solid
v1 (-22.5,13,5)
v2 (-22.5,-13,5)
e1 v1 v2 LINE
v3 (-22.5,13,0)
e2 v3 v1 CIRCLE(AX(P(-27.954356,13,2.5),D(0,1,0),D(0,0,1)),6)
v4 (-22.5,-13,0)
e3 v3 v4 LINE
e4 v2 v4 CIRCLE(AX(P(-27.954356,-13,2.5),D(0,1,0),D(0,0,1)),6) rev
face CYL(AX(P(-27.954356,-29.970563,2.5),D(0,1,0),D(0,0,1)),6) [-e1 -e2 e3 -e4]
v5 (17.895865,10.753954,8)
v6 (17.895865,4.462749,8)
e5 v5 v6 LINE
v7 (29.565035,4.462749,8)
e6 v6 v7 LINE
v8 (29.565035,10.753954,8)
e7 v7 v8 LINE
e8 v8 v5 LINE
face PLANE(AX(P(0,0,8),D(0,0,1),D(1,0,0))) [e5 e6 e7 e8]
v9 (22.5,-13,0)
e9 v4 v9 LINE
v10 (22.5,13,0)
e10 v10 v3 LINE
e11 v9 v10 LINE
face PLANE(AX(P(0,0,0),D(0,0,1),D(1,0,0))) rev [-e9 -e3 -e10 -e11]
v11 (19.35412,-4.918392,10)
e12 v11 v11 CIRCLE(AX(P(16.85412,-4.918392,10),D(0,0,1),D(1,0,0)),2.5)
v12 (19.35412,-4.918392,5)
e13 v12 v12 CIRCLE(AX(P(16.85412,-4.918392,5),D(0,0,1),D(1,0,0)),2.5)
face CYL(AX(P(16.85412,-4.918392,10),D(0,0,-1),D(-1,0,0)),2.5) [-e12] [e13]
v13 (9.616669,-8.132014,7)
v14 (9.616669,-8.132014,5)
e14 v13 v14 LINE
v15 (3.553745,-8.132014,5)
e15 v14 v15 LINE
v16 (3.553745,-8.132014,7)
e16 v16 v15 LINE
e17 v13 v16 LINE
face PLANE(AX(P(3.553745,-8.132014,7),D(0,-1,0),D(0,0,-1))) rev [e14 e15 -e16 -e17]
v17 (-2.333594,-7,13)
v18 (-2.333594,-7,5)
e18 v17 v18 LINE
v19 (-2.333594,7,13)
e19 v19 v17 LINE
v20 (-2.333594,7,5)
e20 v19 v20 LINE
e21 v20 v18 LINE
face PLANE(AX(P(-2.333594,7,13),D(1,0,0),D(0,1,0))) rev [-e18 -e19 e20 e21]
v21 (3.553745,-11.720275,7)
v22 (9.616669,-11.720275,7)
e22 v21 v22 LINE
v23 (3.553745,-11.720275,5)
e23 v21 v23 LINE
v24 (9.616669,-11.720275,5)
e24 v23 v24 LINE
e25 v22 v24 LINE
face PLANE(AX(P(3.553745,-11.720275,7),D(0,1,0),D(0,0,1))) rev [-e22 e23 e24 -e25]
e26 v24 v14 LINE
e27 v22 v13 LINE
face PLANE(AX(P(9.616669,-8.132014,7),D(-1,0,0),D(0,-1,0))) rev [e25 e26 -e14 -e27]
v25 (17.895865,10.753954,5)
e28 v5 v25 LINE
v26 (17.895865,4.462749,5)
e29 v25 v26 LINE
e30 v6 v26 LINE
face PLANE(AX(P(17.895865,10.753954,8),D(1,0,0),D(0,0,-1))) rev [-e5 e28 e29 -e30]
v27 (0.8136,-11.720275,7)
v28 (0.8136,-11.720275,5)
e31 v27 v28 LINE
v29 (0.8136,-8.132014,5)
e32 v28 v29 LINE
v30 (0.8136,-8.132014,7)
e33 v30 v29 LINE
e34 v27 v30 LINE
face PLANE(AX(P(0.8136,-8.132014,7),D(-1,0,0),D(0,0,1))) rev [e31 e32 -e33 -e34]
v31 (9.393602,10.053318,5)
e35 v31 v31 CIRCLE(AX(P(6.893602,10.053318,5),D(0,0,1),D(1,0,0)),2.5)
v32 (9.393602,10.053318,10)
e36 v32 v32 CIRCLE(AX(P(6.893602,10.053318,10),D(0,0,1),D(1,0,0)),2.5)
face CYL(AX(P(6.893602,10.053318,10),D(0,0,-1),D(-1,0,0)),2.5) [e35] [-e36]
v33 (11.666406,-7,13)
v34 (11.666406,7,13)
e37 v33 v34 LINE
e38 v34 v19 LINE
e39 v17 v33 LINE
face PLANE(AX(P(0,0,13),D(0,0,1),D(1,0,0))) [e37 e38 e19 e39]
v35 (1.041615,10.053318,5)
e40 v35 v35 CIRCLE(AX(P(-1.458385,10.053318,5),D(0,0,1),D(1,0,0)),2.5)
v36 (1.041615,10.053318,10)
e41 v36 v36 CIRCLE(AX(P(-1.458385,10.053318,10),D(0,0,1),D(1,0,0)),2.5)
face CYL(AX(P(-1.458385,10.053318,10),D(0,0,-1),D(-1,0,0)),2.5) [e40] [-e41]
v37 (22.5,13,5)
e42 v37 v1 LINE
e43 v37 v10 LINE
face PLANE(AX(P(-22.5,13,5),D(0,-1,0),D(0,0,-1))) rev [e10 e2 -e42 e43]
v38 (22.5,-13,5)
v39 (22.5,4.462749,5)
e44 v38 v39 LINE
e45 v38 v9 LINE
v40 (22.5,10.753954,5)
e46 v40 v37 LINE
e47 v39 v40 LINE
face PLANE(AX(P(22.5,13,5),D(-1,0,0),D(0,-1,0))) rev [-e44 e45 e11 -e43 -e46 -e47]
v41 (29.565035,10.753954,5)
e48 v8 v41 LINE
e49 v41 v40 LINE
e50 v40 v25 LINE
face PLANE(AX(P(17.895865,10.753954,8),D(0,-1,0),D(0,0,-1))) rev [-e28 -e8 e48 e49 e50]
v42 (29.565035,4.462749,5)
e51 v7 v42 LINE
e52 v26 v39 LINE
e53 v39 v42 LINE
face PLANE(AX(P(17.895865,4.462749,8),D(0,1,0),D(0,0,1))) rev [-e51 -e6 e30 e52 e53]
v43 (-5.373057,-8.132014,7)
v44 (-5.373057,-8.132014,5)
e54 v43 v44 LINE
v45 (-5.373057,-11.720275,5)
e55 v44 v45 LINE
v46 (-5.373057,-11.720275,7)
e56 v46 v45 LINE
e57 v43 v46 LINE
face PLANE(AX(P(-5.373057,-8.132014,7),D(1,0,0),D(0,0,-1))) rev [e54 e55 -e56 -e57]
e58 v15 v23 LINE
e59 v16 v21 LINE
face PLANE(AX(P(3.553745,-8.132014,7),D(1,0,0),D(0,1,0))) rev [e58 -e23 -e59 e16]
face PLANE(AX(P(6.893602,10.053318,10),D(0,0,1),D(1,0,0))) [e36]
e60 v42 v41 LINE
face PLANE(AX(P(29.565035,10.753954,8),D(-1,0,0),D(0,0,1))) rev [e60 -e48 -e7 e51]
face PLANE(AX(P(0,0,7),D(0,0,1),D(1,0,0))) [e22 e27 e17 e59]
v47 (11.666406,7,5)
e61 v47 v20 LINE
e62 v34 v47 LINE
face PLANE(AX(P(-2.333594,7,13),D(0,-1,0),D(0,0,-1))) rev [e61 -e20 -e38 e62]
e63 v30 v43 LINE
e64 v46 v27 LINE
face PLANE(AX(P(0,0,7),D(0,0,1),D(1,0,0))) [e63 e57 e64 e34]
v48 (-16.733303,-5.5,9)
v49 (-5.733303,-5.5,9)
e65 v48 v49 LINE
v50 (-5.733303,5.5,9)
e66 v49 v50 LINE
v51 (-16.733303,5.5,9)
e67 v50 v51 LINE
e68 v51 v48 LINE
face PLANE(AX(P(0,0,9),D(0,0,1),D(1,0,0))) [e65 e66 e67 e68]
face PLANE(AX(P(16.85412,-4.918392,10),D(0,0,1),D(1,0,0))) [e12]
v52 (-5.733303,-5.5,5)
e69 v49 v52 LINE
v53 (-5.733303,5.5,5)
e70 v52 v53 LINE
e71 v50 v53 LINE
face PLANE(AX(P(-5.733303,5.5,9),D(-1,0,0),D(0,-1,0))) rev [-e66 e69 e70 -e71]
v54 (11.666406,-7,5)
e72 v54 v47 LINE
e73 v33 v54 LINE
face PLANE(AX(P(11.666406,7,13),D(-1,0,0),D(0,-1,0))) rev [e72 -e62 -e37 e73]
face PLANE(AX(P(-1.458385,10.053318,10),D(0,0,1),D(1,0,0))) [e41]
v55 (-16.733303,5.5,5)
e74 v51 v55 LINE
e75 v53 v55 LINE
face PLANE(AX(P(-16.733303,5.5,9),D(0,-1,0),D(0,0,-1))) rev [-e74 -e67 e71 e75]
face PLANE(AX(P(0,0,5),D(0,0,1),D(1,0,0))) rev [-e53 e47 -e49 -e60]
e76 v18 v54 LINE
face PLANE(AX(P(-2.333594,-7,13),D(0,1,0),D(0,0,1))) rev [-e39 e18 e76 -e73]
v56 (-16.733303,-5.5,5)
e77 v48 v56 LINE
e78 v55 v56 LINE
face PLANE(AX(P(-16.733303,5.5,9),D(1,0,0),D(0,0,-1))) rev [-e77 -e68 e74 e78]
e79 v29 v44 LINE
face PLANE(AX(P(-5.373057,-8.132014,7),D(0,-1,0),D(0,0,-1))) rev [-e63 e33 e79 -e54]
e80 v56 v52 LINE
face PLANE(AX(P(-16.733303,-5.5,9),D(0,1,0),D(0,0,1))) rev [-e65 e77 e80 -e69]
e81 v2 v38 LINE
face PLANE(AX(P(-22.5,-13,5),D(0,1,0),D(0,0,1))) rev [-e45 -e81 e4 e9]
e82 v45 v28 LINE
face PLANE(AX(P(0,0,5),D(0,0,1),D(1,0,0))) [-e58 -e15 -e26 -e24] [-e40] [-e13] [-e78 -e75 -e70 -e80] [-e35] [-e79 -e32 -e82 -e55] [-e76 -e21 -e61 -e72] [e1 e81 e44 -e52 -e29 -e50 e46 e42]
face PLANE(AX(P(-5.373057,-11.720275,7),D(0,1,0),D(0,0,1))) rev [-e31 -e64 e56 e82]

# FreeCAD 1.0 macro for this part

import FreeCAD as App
import Part
import Sketcher

V = App.Vector
Q = App.Units.Quantity


def add_polygon(sketch, points):
    """Adds a closed chain of lines whose ends are joined by coincident constraints."""
    first, n = sketch.GeometryCount, len(points)
    for a, b in zip(points, points[1:] + points[:1]):
        sketch.addGeometry(Part.LineSegment(App.Vector(*a, 0), App.Vector(*b, 0)), False)
    for i in range(n):
        sketch.addConstraint(Sketcher.Constraint("Coincident", first + i, 2, first + (i + 1) % n, 1))

doc = App.newDocument("Part")
body = doc.addObject("PartDesign::Body", "Body")

# Sketch on XY plane
sketch1 = body.newObject("Sketcher::SketchObject", "Sketch")
sketch1.AttachmentSupport = (doc.getObject("XY_Plane"), [""])
sketch1.MapMode = "FlatFace"
add_polygon(sketch1, [(-22, 13), (-22, -13), (22, -13), (22, 13)])  # lines 0-3
sketch1.addConstraint([
    Sketcher.Constraint("Vertical", 0),
    Sketcher.Constraint("Horizontal", 1),
    Sketcher.Constraint("Vertical", 2),
    Sketcher.Constraint("Horizontal", 3),
    Sketcher.Constraint("Symmetric", 0, 2, 2, 2, -1, 1),
    Sketcher.Constraint("DistanceX", 1, 1, 1, 2, Q("45 mm")),
    Sketcher.Constraint("DistanceY", 0, 2, 0, 1, Q("26 mm")),
])
pad1 = body.newObject("PartDesign::Pad", "Pad")
pad1.Profile = sketch1
pad1.Length = 5

# Sketch on XZ plane
sketch2 = body.newObject("Sketcher::SketchObject", "Sketch001")
sketch2.AttachmentSupport = (doc.getObject("XZ_Plane"), [""])
sketch2.MapMode = "FlatFace"
sketch2.AttachmentOffset = App.Placement(V(0, 0, -13), App.Rotation())
sketch2.addGeometry(Part.Circle(V(-28, 2, 0), V(0, 0, 1), 6), False)
sketch2.addConstraint([
    Sketcher.Constraint("Diameter", 0, Q("12 mm")),
    Sketcher.Constraint("DistanceY", -1, 1, 0, 3, Q("2.5 mm")),
    Sketcher.Constraint("DistanceX", 0, 3, -1, 1, Q("27.954356 mm")),
])
pad2 = body.newObject("PartDesign::Pad", "Pad001")
pad2.Profile = sketch2
pad2.Length = 26

# Sketch on XY plane
sketch3 = body.newObject("Sketcher::SketchObject", "Sketch002")
sketch3.AttachmentSupport = (doc.getObject("XY_Plane"), [""])
sketch3.MapMode = "FlatFace"
sketch3.AttachmentOffset = App.Placement(V(0, 0, 5), App.Rotation())
add_polygon(sketch3, [(-2, 7), (-2, -7), (12, -7), (12, 7)])  # lines 0-3
sketch3.addConstraint([
    Sketcher.Constraint("Vertical", 0),
    Sketcher.Constraint("Horizontal", 1),
    Sketcher.Constraint("Vertical", 2),
    Sketcher.Constraint("Horizontal", 3),
    Sketcher.Constraint("Equal", 3, 0),
    Sketcher.Constraint("DistanceX", 1, 1, 1, 2, Q("14 mm")),
    Sketcher.Constraint("DistanceY", 0, 2, -1, 1, Q("7 mm")),
    Sketcher.Constraint("DistanceX", 0, 2, -1, 1, Q("2.333594 mm")),
])
pad3 = body.newObject("PartDesign::Pad", "Pad002")
pad3.Profile = sketch3
pad3.Length = 8

# Sketch on XY plane
sketch4 = body.newObject("Sketcher::SketchObject", "Sketch003")
sketch4.AttachmentSupport = (doc.getObject("XY_Plane"), [""])
sketch4.MapMode = "FlatFace"
sketch4.AttachmentOffset = App.Placement(V(0, 0, 5), App.Rotation())
sketch4.addGeometry([
    Part.Circle(V(-1.5, 10.1, 0), V(0, 0, 1), 2.5),
    Part.Circle(V(6.9, 10.1, 0), V(0, 0, 1), 2.5),
    Part.Circle(V(16.9, -4.9, 0), V(0, 0, 1), 2.5),
], False)
sketch4.addConstraint([
    Sketcher.Constraint("Equal", 0, 1),
    Sketcher.Constraint("Equal", 1, 2),
    Sketcher.Constraint("Horizontal", 0, 3, 1, 3),
    Sketcher.Constraint("Diameter", 0, Q("5 mm")),
    Sketcher.Constraint("DistanceX", -1, 1, 2, 3, Q("16.85412 mm")),
    Sketcher.Constraint("DistanceY", 2, 3, 1, 3, Q("14.97171 mm")),
    Sketcher.Constraint("DistanceX", 0, 3, -1, 1, Q("1.458385 mm")),
    Sketcher.Constraint("DistanceY", -1, 1, 0, 3, Q("10.053318 mm")),
    Sketcher.Constraint("DistanceX", -1, 1, 1, 3, Q("6.893602 mm")),
])
pad4 = body.newObject("PartDesign::Pad", "Pad003")
pad4.Profile = sketch4
pad4.Length = 5

# Sketch on XY plane
sketch5 = body.newObject("Sketcher::SketchObject", "Sketch004")
sketch5.AttachmentSupport = (doc.getObject("XY_Plane"), [""])
sketch5.MapMode = "FlatFace"
sketch5.AttachmentOffset = App.Placement(V(0, 0, 5), App.Rotation())
add_polygon(sketch5, [(-17, 6), (-17, -6), (-6, -6), (-6, 6)])  # lines 0-3
sketch5.addConstraint([
    Sketcher.Constraint("Vertical", 0),
    Sketcher.Constraint("Horizontal", 1),
    Sketcher.Constraint("Vertical", 2),
    Sketcher.Constraint("Horizontal", 3),
    Sketcher.Constraint("Equal", 3, 0),
    Sketcher.Constraint("DistanceX", 1, 1, 1, 2, Q("11 mm")),
    Sketcher.Constraint("DistanceY", 0, 2, -1, 1, Q("5.5 mm")),
    Sketcher.Constraint("DistanceX", 0, 2, -1, 1, Q("16.733303 mm")),
])
pad5 = body.newObject("PartDesign::Pad", "Pad004")
pad5.Profile = sketch5
pad5.Length = 4

# Sketch on XY plane
sketch6 = body.newObject("Sketcher::SketchObject", "Sketch005")
sketch6.AttachmentSupport = (doc.getObject("XY_Plane"), [""])
sketch6.MapMode = "FlatFace"
sketch6.AttachmentOffset = App.Placement(V(0, 0, 5), App.Rotation())
add_polygon(sketch6, [(-5.4, -8.1), (-5.4, -11.7), (0.8, -11.7), (0.8, -8.1)])  # lines 0-3
add_polygon(sketch6, [(3.6, -8.1), (3.6, -11.7), (9.6, -11.7), (9.6, -8.1)])  # lines 4-7
sketch6.addConstraint([
    Sketcher.Constraint("Vertical", 0),
    Sketcher.Constraint("Horizontal", 1),
    Sketcher.Constraint("Vertical", 2),
    Sketcher.Constraint("Horizontal", 3),
    Sketcher.Constraint("Vertical", 4),
    Sketcher.Constraint("Horizontal", 5),
    Sketcher.Constraint("Vertical", 6),
    Sketcher.Constraint("Horizontal", 7),
    Sketcher.Constraint("Horizontal", 1, 2, 4, 2),
    Sketcher.Constraint("Horizontal", 3, 2, 6, 2),
    Sketcher.Constraint("DistanceY", 0, 2, 0, 1, Q("3.588261 mm")),
    Sketcher.Constraint("DistanceX", -1, 1, 1, 2, Q("0.8136 mm")),
    Sketcher.Constraint("DistanceX", 0, 2, 4, 2, Q("8.926802 mm")),
    Sketcher.Constraint("DistanceX", 1, 1, 1, 2, Q("6.186657 mm")),
    Sketcher.Constraint("DistanceX", 5, 1, 5, 2, Q("6.062924 mm")),
    Sketcher.Constraint("DistanceY", 0, 2, -1, 1, Q("11.720275 mm")),
])
pad6 = body.newObject("PartDesign::Pad", "Pad005")
pad6.Profile = sketch6
pad6.Length = 2

# Sketch on XY plane
sketch7 = body.newObject("Sketcher::SketchObject", "Sketch006")
sketch7.AttachmentSupport = (doc.getObject("XY_Plane"), [""])
sketch7.MapMode = "FlatFace"
sketch7.AttachmentOffset = App.Placement(V(0, 0, 5), App.Rotation())
add_polygon(sketch7, [(18, 11), (18, 4), (30, 4), (30, 11)])  # lines 0-3
sketch7.addConstraint([
    Sketcher.Constraint("Vertical", 0),
    Sketcher.Constraint("Horizontal", 1),
    Sketcher.Constraint("Vertical", 2),
    Sketcher.Constraint("Horizontal", 3),
    Sketcher.Constraint("DistanceX", 1, 1, 1, 2, Q("11.669171 mm")),
    Sketcher.Constraint("DistanceY", 0, 2, 0, 1, Q("6.291205 mm")),
    Sketcher.Constraint("DistanceY", -1, 1, 0, 2, Q("4.462749 mm")),
    Sketcher.Constraint("DistanceX", -1, 1, 0, 2, Q("17.895865 mm")),
])
pad7 = body.newObject("PartDesign::Pad", "Pad006")
pad7.Profile = sketch7
pad7.Length = 3

doc.recompute()
